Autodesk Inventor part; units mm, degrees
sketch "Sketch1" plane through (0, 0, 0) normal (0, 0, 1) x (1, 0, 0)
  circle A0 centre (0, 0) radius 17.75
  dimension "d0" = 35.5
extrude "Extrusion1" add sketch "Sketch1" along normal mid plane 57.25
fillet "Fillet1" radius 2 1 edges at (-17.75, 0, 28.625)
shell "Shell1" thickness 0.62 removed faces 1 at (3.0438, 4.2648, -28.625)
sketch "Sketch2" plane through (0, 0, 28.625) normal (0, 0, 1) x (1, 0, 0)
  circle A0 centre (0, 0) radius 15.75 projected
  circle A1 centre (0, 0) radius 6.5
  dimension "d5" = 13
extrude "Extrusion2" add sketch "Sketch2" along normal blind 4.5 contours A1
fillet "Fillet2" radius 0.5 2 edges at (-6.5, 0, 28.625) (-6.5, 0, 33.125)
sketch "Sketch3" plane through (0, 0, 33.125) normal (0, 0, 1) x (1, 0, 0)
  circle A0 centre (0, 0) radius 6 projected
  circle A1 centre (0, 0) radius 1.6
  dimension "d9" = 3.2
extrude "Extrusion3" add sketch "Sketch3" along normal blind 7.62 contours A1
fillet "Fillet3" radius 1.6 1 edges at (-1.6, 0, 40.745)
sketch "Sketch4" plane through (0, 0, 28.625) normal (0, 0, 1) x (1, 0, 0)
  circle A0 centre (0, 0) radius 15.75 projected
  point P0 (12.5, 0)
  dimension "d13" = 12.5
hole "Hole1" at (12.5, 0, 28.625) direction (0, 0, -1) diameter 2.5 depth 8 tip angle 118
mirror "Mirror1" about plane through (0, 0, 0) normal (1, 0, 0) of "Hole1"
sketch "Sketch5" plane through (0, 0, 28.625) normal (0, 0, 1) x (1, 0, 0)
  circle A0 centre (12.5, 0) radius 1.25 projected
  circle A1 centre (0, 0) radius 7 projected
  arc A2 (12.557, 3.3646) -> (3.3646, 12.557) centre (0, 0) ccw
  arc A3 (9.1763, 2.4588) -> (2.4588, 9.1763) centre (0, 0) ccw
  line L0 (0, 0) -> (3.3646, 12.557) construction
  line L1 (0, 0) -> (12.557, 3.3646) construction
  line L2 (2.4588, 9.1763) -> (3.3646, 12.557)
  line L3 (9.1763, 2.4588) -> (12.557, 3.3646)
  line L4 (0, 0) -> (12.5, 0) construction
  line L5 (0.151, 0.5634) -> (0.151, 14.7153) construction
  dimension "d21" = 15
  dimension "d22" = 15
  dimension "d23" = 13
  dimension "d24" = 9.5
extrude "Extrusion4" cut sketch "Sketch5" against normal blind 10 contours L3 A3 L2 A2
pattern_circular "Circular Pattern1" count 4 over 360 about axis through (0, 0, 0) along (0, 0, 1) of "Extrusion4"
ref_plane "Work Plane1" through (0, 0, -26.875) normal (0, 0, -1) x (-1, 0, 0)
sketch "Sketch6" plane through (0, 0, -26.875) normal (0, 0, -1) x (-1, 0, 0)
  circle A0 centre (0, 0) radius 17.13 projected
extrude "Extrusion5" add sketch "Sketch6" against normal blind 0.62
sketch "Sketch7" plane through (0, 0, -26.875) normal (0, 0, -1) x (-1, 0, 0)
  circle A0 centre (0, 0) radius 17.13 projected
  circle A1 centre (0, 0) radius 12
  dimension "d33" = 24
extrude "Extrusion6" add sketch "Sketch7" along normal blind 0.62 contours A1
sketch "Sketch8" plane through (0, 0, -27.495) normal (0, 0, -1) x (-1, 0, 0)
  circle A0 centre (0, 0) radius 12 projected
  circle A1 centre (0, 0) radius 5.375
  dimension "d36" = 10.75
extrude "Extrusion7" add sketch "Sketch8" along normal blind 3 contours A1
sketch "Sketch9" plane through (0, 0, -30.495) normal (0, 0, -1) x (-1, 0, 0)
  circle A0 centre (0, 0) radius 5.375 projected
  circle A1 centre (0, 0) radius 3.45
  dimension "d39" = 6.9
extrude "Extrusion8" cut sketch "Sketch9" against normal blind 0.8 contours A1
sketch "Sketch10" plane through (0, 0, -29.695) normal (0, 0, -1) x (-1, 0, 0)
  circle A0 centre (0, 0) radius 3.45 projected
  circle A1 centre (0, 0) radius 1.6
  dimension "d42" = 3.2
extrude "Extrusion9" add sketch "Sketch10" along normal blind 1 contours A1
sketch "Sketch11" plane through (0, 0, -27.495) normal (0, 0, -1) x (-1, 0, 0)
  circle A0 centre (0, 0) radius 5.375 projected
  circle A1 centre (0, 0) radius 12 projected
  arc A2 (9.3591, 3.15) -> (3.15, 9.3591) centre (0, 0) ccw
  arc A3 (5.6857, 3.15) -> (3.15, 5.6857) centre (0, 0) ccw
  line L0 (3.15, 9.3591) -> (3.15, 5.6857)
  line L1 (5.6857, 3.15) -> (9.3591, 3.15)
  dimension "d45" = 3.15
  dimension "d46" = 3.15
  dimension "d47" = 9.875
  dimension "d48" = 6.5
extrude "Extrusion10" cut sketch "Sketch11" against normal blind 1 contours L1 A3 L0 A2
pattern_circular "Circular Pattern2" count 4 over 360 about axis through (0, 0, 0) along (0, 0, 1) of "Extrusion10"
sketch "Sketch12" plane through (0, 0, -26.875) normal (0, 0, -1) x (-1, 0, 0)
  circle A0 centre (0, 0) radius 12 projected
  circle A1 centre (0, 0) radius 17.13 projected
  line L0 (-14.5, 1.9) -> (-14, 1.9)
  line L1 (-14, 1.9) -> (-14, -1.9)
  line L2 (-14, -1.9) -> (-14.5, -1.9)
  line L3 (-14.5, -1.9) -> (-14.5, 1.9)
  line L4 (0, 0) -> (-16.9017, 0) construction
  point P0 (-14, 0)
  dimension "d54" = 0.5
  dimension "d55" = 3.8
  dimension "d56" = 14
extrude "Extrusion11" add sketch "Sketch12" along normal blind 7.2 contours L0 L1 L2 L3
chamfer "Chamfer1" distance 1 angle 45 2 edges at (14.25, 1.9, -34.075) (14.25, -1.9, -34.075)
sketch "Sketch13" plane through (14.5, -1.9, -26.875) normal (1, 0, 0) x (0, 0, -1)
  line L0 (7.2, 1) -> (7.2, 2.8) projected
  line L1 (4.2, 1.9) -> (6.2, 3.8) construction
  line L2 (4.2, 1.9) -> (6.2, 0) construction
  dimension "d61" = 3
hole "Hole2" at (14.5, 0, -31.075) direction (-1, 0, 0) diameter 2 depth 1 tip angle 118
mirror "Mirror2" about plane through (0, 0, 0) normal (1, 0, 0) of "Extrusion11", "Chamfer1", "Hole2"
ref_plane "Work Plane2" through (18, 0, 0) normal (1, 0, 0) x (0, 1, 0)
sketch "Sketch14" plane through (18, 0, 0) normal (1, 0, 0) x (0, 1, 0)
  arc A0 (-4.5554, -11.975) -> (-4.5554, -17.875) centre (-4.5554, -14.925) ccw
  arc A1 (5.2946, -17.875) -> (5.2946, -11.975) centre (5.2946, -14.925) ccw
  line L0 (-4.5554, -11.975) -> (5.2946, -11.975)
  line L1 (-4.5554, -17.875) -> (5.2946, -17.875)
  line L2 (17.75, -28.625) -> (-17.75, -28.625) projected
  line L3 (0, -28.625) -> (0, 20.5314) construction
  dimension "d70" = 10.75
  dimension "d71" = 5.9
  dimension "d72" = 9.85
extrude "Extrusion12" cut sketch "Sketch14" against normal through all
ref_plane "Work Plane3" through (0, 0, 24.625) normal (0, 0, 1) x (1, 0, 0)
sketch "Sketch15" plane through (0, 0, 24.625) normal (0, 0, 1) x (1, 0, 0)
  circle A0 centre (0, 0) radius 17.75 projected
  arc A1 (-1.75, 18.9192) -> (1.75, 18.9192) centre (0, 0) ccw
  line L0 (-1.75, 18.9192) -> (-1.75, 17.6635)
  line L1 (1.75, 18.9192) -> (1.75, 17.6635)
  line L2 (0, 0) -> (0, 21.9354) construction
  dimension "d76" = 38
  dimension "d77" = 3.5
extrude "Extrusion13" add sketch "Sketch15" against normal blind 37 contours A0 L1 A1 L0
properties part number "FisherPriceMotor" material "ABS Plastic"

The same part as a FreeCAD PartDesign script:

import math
import FreeCAD as App
import Part
import Sketcher
from FreeCAD import Vector
Q = App.Units.Quantity


def edges_at(feature, points):
    """Names of the edges that pass closest to the given points."""
    edges = feature.Shape.Edges
    near = lambda p: min(range(len(edges)), key=lambda i: edges[i].distToShape(Part.Vertex(*p))[0])
    return sorted({f"Edge{near(p) + 1}" for p in points})


def faces_at(feature, points):
    """Names of the faces that lie closest to the given points."""
    faces = feature.Shape.Faces
    near = lambda p: min(range(len(faces)), key=lambda i: faces[i].distToShape(Part.Vertex(*p))[0])
    return sorted({f"Face{near(p) + 1}" for p in points})


def add_polygon(sketch, points):
    """Adds a closed chain of lines whose ends are joined by coincident constraints."""
    first, n = sketch.GeometryCount, len(points)
    for a, b in zip(points, points[1:] + points[:1]):
        sketch.addGeometry(Part.LineSegment(App.Vector(*a, 0), App.Vector(*b, 0)), False)
    for i in range(n):
        sketch.addConstraint(Sketcher.Constraint("Coincident", first + i, 2, first + (i + 1) % n, 1))

doc = App.newDocument("Part")
body = doc.addObject("PartDesign::Body", "Body")

# Sketch on XY plane
sketch1 = body.newObject("Sketcher::SketchObject", "Sketch")
sketch1.AttachmentSupport = (doc.getObject("XY_Plane"), [""])
sketch1.MapMode = "FlatFace"
sketch1.addGeometry(Part.Circle(Vector(0, 0, 0), Vector(0, 0, 1), 18), False)
sketch1.addConstraint([
    Sketcher.Constraint("Coincident", 0, 3, -1, 1),
    Sketcher.Constraint("Diameter", 0, Q("35.5 mm")),
])
pad1 = body.newObject("PartDesign::Pad", "Pad")
pad1.Profile = sketch1
pad1.Length = 57.25
pad1.Midplane = True
doc.recompute()

fillet = body.newObject("PartDesign::Fillet", "Fillet")
fillet.Base = (pad1, edges_at(pad1, [(-17.75, 0, 28.625)]))
fillet.Radius = 2
doc.recompute()

thickness = body.newObject("PartDesign::Thickness", "Thickness")
thickness.Base = (fillet, faces_at(fillet, [(3.044, 4.265, -28.625)]))
thickness.Value = 0.62
thickness.Reversed = True
thickness.Join = "Intersection"

# Sketch on XY plane
sketch2 = body.newObject("Sketcher::SketchObject", "Sketch001")
sketch2.AttachmentSupport = (doc.getObject("XY_Plane"), [""])
sketch2.MapMode = "FlatFace"
sketch2.AttachmentOffset = App.Placement(Vector(0, 0, 28.625), App.Rotation())
sketch2.addGeometry(Part.Circle(Vector(0, 0, 0), Vector(0, 0, 1), 6), False)
sketch2.addConstraint([
    Sketcher.Constraint("Coincident", 0, 3, -1, 1),
    Sketcher.Constraint("Diameter", 0, Q("13 mm")),
])
pad2 = body.newObject("PartDesign::Pad", "Pad001")
pad2.Profile = sketch2
pad2.Length = 4.5
doc.recompute()

fillet2 = body.newObject("PartDesign::Fillet", "Fillet001")
fillet2.Base = (pad2, edges_at(pad2, [(-6.5, 0, 28.625), (-6.5, 0, 33.125)]))
fillet2.Radius = 0.5

# Sketch on XY plane
sketch3 = body.newObject("Sketcher::SketchObject", "Sketch002")
sketch3.AttachmentSupport = (doc.getObject("XY_Plane"), [""])
sketch3.MapMode = "FlatFace"
sketch3.AttachmentOffset = App.Placement(Vector(0, 0, 33.125), App.Rotation())
sketch3.addGeometry(Part.Circle(Vector(0, 0, 0), Vector(0, 0, 1), 1.6), False)
sketch3.addConstraint([
    Sketcher.Constraint("Coincident", 0, 3, -1, 1),
    Sketcher.Constraint("Diameter", 0, Q("3.2 mm")),
])
pad3 = body.newObject("PartDesign::Pad", "Pad002")
pad3.Profile = sketch3
pad3.Length = 7.62
doc.recompute()

fillet3 = body.newObject("PartDesign::Fillet", "Fillet002")
fillet3.Base = (pad3, edges_at(pad3, [(-1.6, 0, 40.745)]))
fillet3.Radius = 1.6

# Sketch on XY plane
sketch4 = body.newObject("Sketcher::SketchObject", "Sketch003")
sketch4.AttachmentSupport = (doc.getObject("XY_Plane"), [""])
sketch4.MapMode = "FlatFace"
sketch4.AttachmentOffset = App.Placement(Vector(0, 0, 28.625), App.Rotation())
sketch4.addGeometry(Part.Circle(Vector(12.5, 0, 0), Vector(0, 0, 1), 1.2), False)
sketch4.addConstraint([
    Sketcher.Constraint("PointOnObject", 0, 3, -1),
    Sketcher.Constraint("Diameter", 0, Q("2.5 mm")),
    Sketcher.Constraint("DistanceX", -1, 1, 0, 3, Q("12.5 mm")),
])
doc.recompute()
hole = body.newObject("PartDesign::Hole", "Hole")
hole.Profile = sketch4
hole.ThreadType = "None"
hole.Diameter = 2.5
hole.DepthType = "Dimension"
hole.Depth = 8
hole.DrillPoint = "Angled"
hole.DrillPointAngle = 118
doc.recompute()

mirrored = body.newObject("PartDesign::Mirrored", "Mirrored")
mirrored.Originals = [hole]
mirrored.MirrorPlane = (doc.getObject("YZ_Plane"), [""])
body.Tip = mirrored

# Sketch on XY plane
sketch5 = body.newObject("Sketcher::SketchObject", "Sketch004")
sketch5.AttachmentSupport = (doc.getObject("XY_Plane"), [""])
sketch5.MapMode = "FlatFace"
sketch5.AttachmentOffset = App.Placement(Vector(0, 0, 28.625), App.Rotation())
sketch5.addGeometry([
    Part.LineSegment(Vector(9.2, 2.5, 0), Vector(12.6, 3.4, 0)),
    Part.ArcOfCircle(Part.Circle(Vector(0, 0, 0), Vector(0, 0, 1), 13), math.radians(15), math.radians(75)),
    Part.LineSegment(Vector(3.4, 12.6, 0), Vector(2.5, 9.2, 0)),
    Part.ArcOfCircle(Part.Circle(Vector(0, 0, 0), Vector(0, 0, 1), 9.5), math.radians(15), math.radians(75)),
], False)
sketch5.addConstraint([
    Sketcher.Constraint("Coincident", 0, 2, 1, 1),
    Sketcher.Constraint("Coincident", 1, 2, 2, 1),
    Sketcher.Constraint("Coincident", 2, 2, 3, 2),
    Sketcher.Constraint("Coincident", 3, 1, 0, 1),
    Sketcher.Constraint("Coincident", 1, 3, -1, 1),
    Sketcher.Constraint("Coincident", 3, 3, -1, 1),
    Sketcher.Constraint("Radius", 1, Q("13 mm")),
    Sketcher.Constraint("Radius", 3, Q("9.5 mm")),
    Sketcher.Constraint("Angle", 0, Q("14.999 deg")),
    Sketcher.Constraint("Angle", 2, Q("-104.999 deg")),
    Sketcher.Constraint("DistanceX", -1, 1, 0, 2, Q("12.557 mm")),
    Sketcher.Constraint("DistanceY", -1, 1, 1, 2, Q("12.557 mm")),
])
pocket1 = body.newObject("PartDesign::Pocket", "Pocket")
pocket1.Profile = sketch5
pocket1.Length = 10
doc.recompute()

polarpattern = body.newObject("PartDesign::PolarPattern", "PolarPattern")
polarpattern.Originals = [pocket1]
polarpattern.Axis = (doc.getObject("Z_Axis"), [""])
polarpattern.Angle = 360
polarpattern.Occurrences = 4
body.Tip = polarpattern

# Sketch on XY plane
sketch6 = body.newObject("Sketcher::SketchObject", "Sketch005")
sketch6.AttachmentSupport = (doc.getObject("XY_Plane"), [""])
sketch6.MapMode = "FlatFace"
sketch6.AttachmentOffset = App.Placement(Vector(0, 0, -26.875), App.Rotation())
sketch6.addGeometry(Part.Circle(Vector(0, 0, 0), Vector(0, 0, 1), 17), False)
sketch6.addConstraint([
    Sketcher.Constraint("Coincident", 0, 3, -1, 1),
    Sketcher.Constraint("Diameter", 0, Q("34.26 mm")),
])
pad4 = body.newObject("PartDesign::Pad", "Pad003")
pad4.Profile = sketch6
pad4.Length = 0.62

# Sketch on XY plane
sketch7 = body.newObject("Sketcher::SketchObject", "Sketch006")
sketch7.AttachmentSupport = (doc.getObject("XY_Plane"), [""])
sketch7.MapMode = "FlatFace"
sketch7.AttachmentOffset = App.Placement(Vector(0, 0, -26.875), App.Rotation())
sketch7.addGeometry(Part.Circle(Vector(0, 0, 0), Vector(0, 0, 1), 12), False)
sketch7.addConstraint([
    Sketcher.Constraint("Coincident", 0, 3, -1, 1),
    Sketcher.Constraint("Diameter", 0, Q("24 mm")),
])
pad5 = body.newObject("PartDesign::Pad", "Pad004")
pad5.Profile = sketch7
pad5.Length = 0.62
pad5.Reversed = True

# Sketch on XY plane
sketch8 = body.newObject("Sketcher::SketchObject", "Sketch007")
sketch8.AttachmentSupport = (doc.getObject("XY_Plane"), [""])
sketch8.MapMode = "FlatFace"
sketch8.AttachmentOffset = App.Placement(Vector(0, 0, -27.495), App.Rotation())
sketch8.addGeometry(Part.Circle(Vector(0, 0, 0), Vector(0, 0, 1), 5), False)
sketch8.addConstraint([
    Sketcher.Constraint("Coincident", 0, 3, -1, 1),
    Sketcher.Constraint("Diameter", 0, Q("10.75 mm")),
])
pad6 = body.newObject("PartDesign::Pad", "Pad005")
pad6.Profile = sketch8
pad6.Length = 3
pad6.Reversed = True

# Sketch on XY plane
sketch9 = body.newObject("Sketcher::SketchObject", "Sketch008")
sketch9.AttachmentSupport = (doc.getObject("XY_Plane"), [""])
sketch9.MapMode = "FlatFace"
sketch9.AttachmentOffset = App.Placement(Vector(0, 0, -30.495), App.Rotation())
sketch9.addGeometry(Part.Circle(Vector(0, 0, 0), Vector(0, 0, 1), 3.5), False)
sketch9.addConstraint([
    Sketcher.Constraint("Coincident", 0, 3, -1, 1),
    Sketcher.Constraint("Diameter", 0, Q("6.9 mm")),
])
pocket2 = body.newObject("PartDesign::Pocket", "Pocket001")
pocket2.Profile = sketch9
pocket2.Length = 0.8
pocket2.Reversed = True

# Sketch on XY plane
sketch10 = body.newObject("Sketcher::SketchObject", "Sketch009")
sketch10.AttachmentSupport = (doc.getObject("XY_Plane"), [""])
sketch10.MapMode = "FlatFace"
sketch10.AttachmentOffset = App.Placement(Vector(0, 0, -29.695), App.Rotation())
sketch10.addGeometry(Part.Circle(Vector(0, 0, 0), Vector(0, 0, 1), 1.6), False)
sketch10.addConstraint([
    Sketcher.Constraint("Coincident", 0, 3, -1, 1),
    Sketcher.Constraint("Diameter", 0, Q("3.2 mm")),
])
pad7 = body.newObject("PartDesign::Pad", "Pad006")
pad7.Profile = sketch10
pad7.Length = 1
pad7.Reversed = True

# Sketch on XY plane
sketch11 = body.newObject("Sketcher::SketchObject", "Sketch010")
sketch11.AttachmentSupport = (doc.getObject("XY_Plane"), [""])
sketch11.MapMode = "FlatFace"
sketch11.AttachmentOffset = App.Placement(Vector(0, 0, -27.495), App.Rotation())
sketch11.addGeometry([
    Part.LineSegment(Vector(-5.7, 3.1, 0), Vector(-9.4, 3.1, 0)),
    Part.ArcOfCircle(Part.Circle(Vector(0, 0, 0), Vector(0, 0, 1), 9.9), math.radians(109), math.radians(161)),
    Part.LineSegment(Vector(-3.1, 9.4, 0), Vector(-3.1, 5.7, 0)),
    Part.ArcOfCircle(Part.Circle(Vector(0, 0, 0), Vector(0, 0, 1), 6.5), math.radians(119), math.radians(151)),
], False)
sketch11.addConstraint([
    Sketcher.Constraint("Coincident", 0, 2, 1, 2),
    Sketcher.Constraint("Coincident", 1, 1, 2, 1),
    Sketcher.Constraint("Coincident", 2, 2, 3, 1),
    Sketcher.Constraint("Coincident", 3, 2, 0, 1),
    Sketcher.Constraint("Horizontal", 0),
    Sketcher.Constraint("Vertical", 2),
    Sketcher.Constraint("Coincident", 1, 3, -1, 1),
    Sketcher.Constraint("Coincident", 3, 3, -1, 1),
    Sketcher.Constraint("Equal", 0, 2),
    Sketcher.Constraint("Radius", 3, Q("6.5 mm")),
    Sketcher.Constraint("Radius", 1, Q("9.875 mm")),
    Sketcher.Constraint("DistanceY", -1, 1, 0, 2, Q("3.15 mm")),
])
pocket3 = body.newObject("PartDesign::Pocket", "Pocket002")
pocket3.Profile = sketch11
pocket3.Length = 1
pocket3.Reversed = True
doc.recompute()

polarpattern2 = body.newObject("PartDesign::PolarPattern", "PolarPattern001")
polarpattern2.Originals = [pocket3]
polarpattern2.Axis = (doc.getObject("Z_Axis"), [""])
polarpattern2.Angle = 360
polarpattern2.Occurrences = 4
body.Tip = polarpattern2

# Sketch on XY plane
sketch12 = body.newObject("Sketcher::SketchObject", "Sketch011")
sketch12.AttachmentSupport = (doc.getObject("XY_Plane"), [""])
sketch12.MapMode = "FlatFace"
sketch12.AttachmentOffset = App.Placement(Vector(0, 0, -26.875), App.Rotation())
add_polygon(sketch12, [(14, 1.9), (14.5, 1.9), (14.5, -1.9), (14, -1.9)])  # lines 0-3
sketch12.addConstraint([
    Sketcher.Constraint("Horizontal", 0),
    Sketcher.Constraint("Vertical", 1),
    Sketcher.Constraint("Horizontal", 2),
    Sketcher.Constraint("Vertical", 3),
    Sketcher.Constraint("DistanceX", 0, 1, 0, 2, Q("0.5 mm")),
    Sketcher.Constraint("DistanceY", 1, 2, 1, 1, Q("3.8 mm")),
    Sketcher.Constraint("DistanceX", -1, 1, 2, 2, Q("14 mm")),
    Sketcher.Constraint("DistanceY", -1, 1, 0, 2, Q("1.9 mm")),
])
pad8 = body.newObject("PartDesign::Pad", "Pad007")
pad8.Profile = sketch12
pad8.Length = 7.2
pad8.Reversed = True
doc.recompute()

chamfer = body.newObject("PartDesign::Chamfer", "Chamfer")
chamfer.Base = (pad8, edges_at(pad8, [(14.25, 1.9, -34.075), (14.25, -1.9, -34.075)]))
chamfer.Size = 1

# Sketch on YZ plane
sketch13 = body.newObject("Sketcher::SketchObject", "Sketch012")
sketch13.AttachmentSupport = (doc.getObject("YZ_Plane"), [""])
sketch13.MapMode = "FlatFace"
sketch13.AttachmentOffset = App.Placement(Vector(0, 0, 14.5), App.Rotation())
sketch13.addGeometry(Part.Circle(Vector(0, -31.1, 0), Vector(0, 0, 1), 1), False)
sketch13.addConstraint([
    Sketcher.Constraint("PointOnObject", 0, 3, -2),
    Sketcher.Constraint("Diameter", 0, Q("2 mm")),
    Sketcher.Constraint("DistanceY", 0, 3, -1, 1, Q("31.075 mm")),
])
doc.recompute()
hole2 = body.newObject("PartDesign::Hole", "Hole001")
hole2.Profile = sketch13
hole2.ThreadType = "None"
hole2.Diameter = 2
hole2.DepthType = "Dimension"
hole2.Depth = 1
hole2.DrillPoint = "Angled"
hole2.DrillPointAngle = 118
doc.recompute()

mirrored2 = body.newObject("PartDesign::Mirrored", "Mirrored001")
mirrored2.Originals = [pad8, chamfer, hole2]
mirrored2.MirrorPlane = (doc.getObject("YZ_Plane"), [""])
body.Tip = mirrored2

# Sketch on YZ plane
sketch14 = body.newObject("Sketcher::SketchObject", "Sketch013")
sketch14.AttachmentSupport = (doc.getObject("YZ_Plane"), [""])
sketch14.MapMode = "FlatFace"
sketch14.AttachmentOffset = App.Placement(Vector(0, 0, 18), App.Rotation())
sketch14.addGeometry([
    Part.LineSegment(Vector(5.3, -12, 0), Vector(-4.6, -12, 0)),
    Part.ArcOfCircle(Part.Circle(Vector(-4.6, -14.9, 0), Vector(0, 0, 1), 3), math.radians(90), math.radians(270)),
    Part.LineSegment(Vector(-4.6, -17.9, 0), Vector(5.3, -17.9, 0)),
    Part.ArcOfCircle(Part.Circle(Vector(5.3, -14.9, 0), Vector(0, 0, 1), 2.9), math.radians(-90), math.radians(90)),
], False)
sketch14.addConstraint([
    Sketcher.Constraint("Tangent", 0, 2, 1, 1),
    Sketcher.Constraint("Tangent", 1, 2, 2, 1),
    Sketcher.Constraint("Tangent", 2, 2, 3, 1),
    Sketcher.Constraint("Tangent", 3, 2, 0, 1),
    Sketcher.Constraint("Horizontal", 0),
    Sketcher.Constraint("Horizontal", 2),
    Sketcher.Constraint("Radius", 1, Q("2.95 mm")),
    Sketcher.Constraint("DistanceX", 0, 2, 0, 1, Q("9.85 mm")),
    Sketcher.Constraint("DistanceY", 1, 3, -1, 1, Q("14.925 mm")),
    Sketcher.Constraint("DistanceX", 1, 3, -1, 1, Q("4.5554 mm")),
])
pocket4 = body.newObject("PartDesign::Pocket", "Pocket003")
pocket4.Profile = sketch14
pocket4.Type = "ThroughAll"

# Sketch on XY plane
sketch15 = body.newObject("Sketcher::SketchObject", "Sketch014")
sketch15.AttachmentSupport = (doc.getObject("XY_Plane"), [""])
sketch15.MapMode = "FlatFace"
sketch15.AttachmentOffset = App.Placement(Vector(0, 0, 24.625), App.Rotation())
sketch15.addGeometry([
    Part.ArcOfCircle(Part.Circle(Vector(0, 0, 0), Vector(0, 0, 1), 17.8), math.radians(96), math.radians(444)),
    Part.LineSegment(Vector(-1.8, 17.7, 0), Vector(-1.8, 18.9, 0)),
    Part.ArcOfCircle(Part.Circle(Vector(0, 0, 0), Vector(0, 0, 1), 19), math.radians(95), math.radians(445)),
    Part.LineSegment(Vector(1.8, 18.9, 0), Vector(1.8, 17.7, 0)),
], False)
sketch15.addConstraint([
    Sketcher.Constraint("Coincident", 0, 1, 1, 1),
    Sketcher.Constraint("Coincident", 1, 2, 2, 1),
    Sketcher.Constraint("Coincident", 2, 2, 3, 1),
    Sketcher.Constraint("Coincident", 3, 2, 0, 2),
    Sketcher.Constraint("Vertical", 1),
    Sketcher.Constraint("Vertical", 3),
    Sketcher.Constraint("Coincident", 0, 3, -1, 1),
    Sketcher.Constraint("Coincident", 2, 3, -1, 1),
    Sketcher.Constraint("Horizontal", 1, 2, 2, 2),
    Sketcher.Constraint("Radius", 2, Q("19 mm")),
    Sketcher.Constraint("DistanceX", 1, 2, 2, 2, Q("3.5 mm")),
    Sketcher.Constraint("Radius", 0, Q("17.75 mm")),
])
pad9 = body.newObject("PartDesign::Pad", "Pad008")
pad9.Profile = sketch15
pad9.Length = 37
pad9.Reversed = True

doc.recompute()
